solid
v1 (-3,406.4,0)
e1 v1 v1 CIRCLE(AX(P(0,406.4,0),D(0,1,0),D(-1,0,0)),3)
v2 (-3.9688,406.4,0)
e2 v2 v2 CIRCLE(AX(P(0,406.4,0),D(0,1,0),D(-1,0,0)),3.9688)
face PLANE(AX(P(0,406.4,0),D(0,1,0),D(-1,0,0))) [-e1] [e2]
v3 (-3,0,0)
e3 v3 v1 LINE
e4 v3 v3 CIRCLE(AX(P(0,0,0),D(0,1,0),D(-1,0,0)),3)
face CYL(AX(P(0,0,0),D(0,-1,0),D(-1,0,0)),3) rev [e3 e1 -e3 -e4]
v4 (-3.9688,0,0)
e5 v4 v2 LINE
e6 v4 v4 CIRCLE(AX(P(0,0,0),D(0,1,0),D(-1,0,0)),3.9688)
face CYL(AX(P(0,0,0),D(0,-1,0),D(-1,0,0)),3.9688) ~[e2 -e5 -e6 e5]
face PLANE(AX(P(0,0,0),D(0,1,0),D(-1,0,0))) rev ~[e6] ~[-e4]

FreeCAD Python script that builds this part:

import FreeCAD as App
import Part
import Sketcher
from FreeCAD import Vector
Q = App.Units.Quantity

doc = App.newDocument("Part")
body = doc.addObject("PartDesign::Body", "Body")

sketch1 = body.newObject("Sketcher::SketchObject", "Sketch")
sketch1.AttachmentSupport = (doc.getObject("XZ_Plane"), [""])
sketch1.MapMode = "FlatFace"
sketch1.addGeometry(Part.Circle(Vector(0, 0, 0), Vector(0, 0, 1), 4), False)
sketch1.addGeometry(Part.Circle(Vector(0, 0, 0), Vector(0, 0, 1), 3), False)
sketch1.addConstraint(Sketcher.Constraint("Coincident", 0, 3, -1, 1))
sketch1.addConstraint(Sketcher.Constraint("Coincident", 1, 3, -1, 1))
sketch1.addConstraint(Sketcher.Constraint("Diameter", 0, Q("0.3125 in")))
sketch1.addConstraint(Sketcher.Constraint("Diameter", 1, 6.0))
pad1 = body.newObject("PartDesign::Pad", "Pad")
pad1.Profile = sketch1
pad1.Length = Q("16 in")
pad1.Reversed = True

doc.recompute()
